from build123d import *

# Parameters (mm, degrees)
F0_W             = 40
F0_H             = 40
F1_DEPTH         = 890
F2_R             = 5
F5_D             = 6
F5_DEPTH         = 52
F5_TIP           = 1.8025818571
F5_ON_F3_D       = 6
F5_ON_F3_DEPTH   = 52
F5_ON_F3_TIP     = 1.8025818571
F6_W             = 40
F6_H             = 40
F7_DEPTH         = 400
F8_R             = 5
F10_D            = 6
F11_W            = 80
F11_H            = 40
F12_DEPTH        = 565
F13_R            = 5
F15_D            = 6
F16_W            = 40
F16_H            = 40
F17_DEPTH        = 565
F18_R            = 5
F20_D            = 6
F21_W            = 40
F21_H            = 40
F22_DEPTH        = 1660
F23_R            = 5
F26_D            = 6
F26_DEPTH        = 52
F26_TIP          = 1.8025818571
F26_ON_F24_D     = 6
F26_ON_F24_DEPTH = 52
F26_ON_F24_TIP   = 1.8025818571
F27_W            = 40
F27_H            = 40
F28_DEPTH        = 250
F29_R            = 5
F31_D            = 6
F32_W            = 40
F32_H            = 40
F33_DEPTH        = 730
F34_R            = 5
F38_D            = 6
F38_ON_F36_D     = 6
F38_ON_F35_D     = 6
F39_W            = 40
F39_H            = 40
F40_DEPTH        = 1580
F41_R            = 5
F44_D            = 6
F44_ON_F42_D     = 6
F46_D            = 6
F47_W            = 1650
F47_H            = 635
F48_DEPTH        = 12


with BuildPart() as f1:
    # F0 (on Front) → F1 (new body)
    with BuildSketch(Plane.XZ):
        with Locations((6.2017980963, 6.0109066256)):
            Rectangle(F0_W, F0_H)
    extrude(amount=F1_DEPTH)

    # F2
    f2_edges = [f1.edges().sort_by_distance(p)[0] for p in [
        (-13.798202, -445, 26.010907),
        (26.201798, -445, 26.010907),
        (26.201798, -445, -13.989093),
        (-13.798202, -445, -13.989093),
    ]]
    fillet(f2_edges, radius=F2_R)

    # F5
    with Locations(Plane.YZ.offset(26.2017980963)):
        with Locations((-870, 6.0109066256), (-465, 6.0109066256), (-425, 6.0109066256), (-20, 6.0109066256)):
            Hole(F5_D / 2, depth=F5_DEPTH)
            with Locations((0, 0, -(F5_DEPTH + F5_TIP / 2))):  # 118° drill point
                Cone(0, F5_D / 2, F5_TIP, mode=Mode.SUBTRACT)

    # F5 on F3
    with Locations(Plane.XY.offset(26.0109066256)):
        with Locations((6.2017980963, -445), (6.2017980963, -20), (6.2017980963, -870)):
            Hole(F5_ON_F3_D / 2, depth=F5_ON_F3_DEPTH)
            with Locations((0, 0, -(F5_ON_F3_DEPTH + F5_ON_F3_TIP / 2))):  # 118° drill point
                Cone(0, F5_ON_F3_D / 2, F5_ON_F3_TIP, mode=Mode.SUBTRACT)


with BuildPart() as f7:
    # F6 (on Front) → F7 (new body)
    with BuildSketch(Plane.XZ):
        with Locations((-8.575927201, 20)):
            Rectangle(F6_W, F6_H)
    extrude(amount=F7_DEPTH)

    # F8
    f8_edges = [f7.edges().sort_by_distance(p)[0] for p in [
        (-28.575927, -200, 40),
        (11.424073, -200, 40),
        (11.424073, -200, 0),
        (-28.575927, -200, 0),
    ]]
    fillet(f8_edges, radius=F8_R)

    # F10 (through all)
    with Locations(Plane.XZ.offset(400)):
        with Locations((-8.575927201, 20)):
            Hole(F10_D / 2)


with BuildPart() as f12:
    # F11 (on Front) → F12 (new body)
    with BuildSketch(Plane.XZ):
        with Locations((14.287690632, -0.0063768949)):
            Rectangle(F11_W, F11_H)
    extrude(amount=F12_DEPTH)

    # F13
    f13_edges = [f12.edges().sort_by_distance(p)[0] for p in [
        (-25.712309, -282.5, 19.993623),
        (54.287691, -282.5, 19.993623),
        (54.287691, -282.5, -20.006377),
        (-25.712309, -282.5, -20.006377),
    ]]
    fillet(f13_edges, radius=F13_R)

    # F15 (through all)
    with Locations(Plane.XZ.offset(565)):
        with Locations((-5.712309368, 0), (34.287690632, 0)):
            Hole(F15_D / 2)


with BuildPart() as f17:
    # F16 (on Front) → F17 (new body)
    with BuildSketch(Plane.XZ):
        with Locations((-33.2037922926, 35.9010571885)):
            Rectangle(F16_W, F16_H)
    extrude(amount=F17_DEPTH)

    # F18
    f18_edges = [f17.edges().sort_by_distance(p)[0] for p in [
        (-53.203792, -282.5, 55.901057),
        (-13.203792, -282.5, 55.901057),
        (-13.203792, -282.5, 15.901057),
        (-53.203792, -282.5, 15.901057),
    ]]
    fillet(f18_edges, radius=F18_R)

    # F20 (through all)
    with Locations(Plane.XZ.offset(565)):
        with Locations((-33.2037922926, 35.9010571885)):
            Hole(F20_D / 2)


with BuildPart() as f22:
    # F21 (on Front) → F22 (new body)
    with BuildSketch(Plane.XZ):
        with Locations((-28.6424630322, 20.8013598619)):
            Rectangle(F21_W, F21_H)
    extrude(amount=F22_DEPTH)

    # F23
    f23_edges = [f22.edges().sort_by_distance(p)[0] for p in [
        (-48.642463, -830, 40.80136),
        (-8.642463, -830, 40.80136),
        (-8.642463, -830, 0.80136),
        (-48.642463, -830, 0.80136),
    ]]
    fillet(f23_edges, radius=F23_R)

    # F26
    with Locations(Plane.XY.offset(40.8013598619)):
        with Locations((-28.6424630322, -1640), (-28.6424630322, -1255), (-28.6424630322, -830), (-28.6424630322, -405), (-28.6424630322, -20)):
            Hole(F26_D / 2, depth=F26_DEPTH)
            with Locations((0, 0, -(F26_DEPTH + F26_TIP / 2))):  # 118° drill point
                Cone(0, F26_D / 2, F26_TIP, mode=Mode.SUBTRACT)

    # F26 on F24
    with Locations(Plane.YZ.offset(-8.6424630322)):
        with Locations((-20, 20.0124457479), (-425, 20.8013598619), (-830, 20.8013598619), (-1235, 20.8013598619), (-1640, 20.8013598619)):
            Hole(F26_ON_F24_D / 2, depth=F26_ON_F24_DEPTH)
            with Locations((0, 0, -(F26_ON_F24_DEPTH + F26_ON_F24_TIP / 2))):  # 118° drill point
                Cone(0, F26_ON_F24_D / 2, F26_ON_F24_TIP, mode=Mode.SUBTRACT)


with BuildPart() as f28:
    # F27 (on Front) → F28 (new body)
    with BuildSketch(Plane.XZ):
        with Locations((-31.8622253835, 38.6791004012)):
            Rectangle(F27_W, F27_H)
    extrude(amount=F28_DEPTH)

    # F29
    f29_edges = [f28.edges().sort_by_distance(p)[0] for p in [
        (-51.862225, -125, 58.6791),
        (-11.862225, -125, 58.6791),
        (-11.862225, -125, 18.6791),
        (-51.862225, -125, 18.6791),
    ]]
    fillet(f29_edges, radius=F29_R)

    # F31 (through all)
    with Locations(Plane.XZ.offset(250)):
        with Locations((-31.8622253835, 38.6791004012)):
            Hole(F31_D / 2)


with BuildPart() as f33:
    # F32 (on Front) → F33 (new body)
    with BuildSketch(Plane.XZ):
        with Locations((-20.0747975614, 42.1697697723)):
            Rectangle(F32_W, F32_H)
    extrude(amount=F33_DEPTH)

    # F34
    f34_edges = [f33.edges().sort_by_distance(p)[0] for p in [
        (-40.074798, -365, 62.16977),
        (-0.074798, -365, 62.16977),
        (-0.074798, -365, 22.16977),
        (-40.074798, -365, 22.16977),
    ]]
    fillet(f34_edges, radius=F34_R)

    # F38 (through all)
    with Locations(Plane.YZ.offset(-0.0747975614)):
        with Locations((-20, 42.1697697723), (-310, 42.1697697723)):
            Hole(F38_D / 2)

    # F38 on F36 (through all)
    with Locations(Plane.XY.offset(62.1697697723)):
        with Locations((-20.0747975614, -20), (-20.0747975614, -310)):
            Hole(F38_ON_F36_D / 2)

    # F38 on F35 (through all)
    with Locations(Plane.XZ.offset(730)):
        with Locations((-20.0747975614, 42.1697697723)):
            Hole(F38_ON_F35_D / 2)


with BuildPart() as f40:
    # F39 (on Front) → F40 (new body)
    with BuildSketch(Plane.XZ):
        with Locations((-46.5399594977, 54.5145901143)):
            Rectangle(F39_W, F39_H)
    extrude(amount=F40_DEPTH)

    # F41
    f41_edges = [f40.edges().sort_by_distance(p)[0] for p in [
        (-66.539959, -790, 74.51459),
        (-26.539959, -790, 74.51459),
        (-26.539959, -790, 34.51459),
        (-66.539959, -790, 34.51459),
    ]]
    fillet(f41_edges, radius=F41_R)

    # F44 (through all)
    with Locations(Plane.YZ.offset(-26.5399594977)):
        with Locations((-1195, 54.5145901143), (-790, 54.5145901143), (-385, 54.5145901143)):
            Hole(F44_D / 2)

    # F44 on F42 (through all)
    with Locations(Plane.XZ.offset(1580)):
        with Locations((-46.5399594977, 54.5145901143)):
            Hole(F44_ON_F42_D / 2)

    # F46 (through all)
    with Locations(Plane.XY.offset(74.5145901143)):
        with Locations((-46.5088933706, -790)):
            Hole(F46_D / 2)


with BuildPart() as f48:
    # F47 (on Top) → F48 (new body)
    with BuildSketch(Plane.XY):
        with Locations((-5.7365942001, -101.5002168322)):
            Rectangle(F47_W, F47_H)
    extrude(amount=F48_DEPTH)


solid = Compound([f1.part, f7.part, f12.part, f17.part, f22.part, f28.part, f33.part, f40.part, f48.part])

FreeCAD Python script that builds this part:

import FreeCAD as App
import Part
import Sketcher
Q = App.Units.Quantity


def edges_at(feature, points):
    """Names of the edges that pass closest to the given points."""
    edges = feature.Shape.Edges
    near = lambda p: min(range(len(edges)), key=lambda i: edges[i].distToShape(Part.Vertex(*p))[0])
    return sorted({f"Edge{near(p) + 1}" for p in points})


def add_polygon(sketch, points):
    """Adds a closed chain of lines whose ends are joined by coincident constraints."""
    first, n = sketch.GeometryCount, len(points)
    for a, b in zip(points, points[1:] + points[:1]):
        sketch.addGeometry(Part.LineSegment(App.Vector(*a, 0), App.Vector(*b, 0)), False)
    for i in range(n):
        sketch.addConstraint(Sketcher.Constraint("Coincident", first + i, 2, first + (i + 1) % n, 1))

doc = App.newDocument("Part")
body = doc.addObject("PartDesign::Body", "Body")

# Sketch on XZ plane
sketch1 = doc.addObject("Sketcher::SketchObject", "Sketch")
body.addObject(sketch1)
sketch1.AttachmentSupport = (doc.XZ_Plane, [""])
sketch1.MapMode = "FlatFace"
add_polygon(sketch1, [(-14, 26), (-14, -14), (26, -14), (26, 26)])  # lines 0-3
sketch1.addConstraint(Sketcher.Constraint("Vertical", 0))
sketch1.addConstraint(Sketcher.Constraint("Horizontal", 1))
sketch1.addConstraint(Sketcher.Constraint("Vertical", 2))
sketch1.addConstraint(Sketcher.Constraint("Horizontal", 3))
sketch1.addConstraint(Sketcher.Constraint("Equal", 3, 0))
sketch1.addConstraint(Sketcher.Constraint("DistanceX", 1, 1, 1, 2, Q("40 mm")))
sketch1.addConstraint(Sketcher.Constraint("DistanceX", 0, 2, -1, 1, Q("13.798202 mm")))
sketch1.addConstraint(Sketcher.Constraint("DistanceY", 0, 2, -1, 1, Q("13.989093 mm")))
pad1 = doc.addObject("PartDesign::Pad", "Pad")
body.addObject(pad1)
pad1.Profile = sketch1
pad1.Length = 890
doc.recompute()

fillet = doc.addObject("PartDesign::Fillet", "Fillet")
body.addObject(fillet)
fillet.Base = (pad1, edges_at(pad1, [
    (-13.798, -445, 26.011),
    (26.202, -445, 26.011),
    (26.202, -445, -13.989),
    (-13.798, -445, -13.989),
]))
fillet.Radius = 5

# Sketch on YZ plane
sketch2 = doc.addObject("Sketcher::SketchObject", "Sketch001")
body.addObject(sketch2)
sketch2.AttachmentSupport = (doc.YZ_Plane, [""])
sketch2.MapMode = "FlatFace"
sketch2.AttachmentOffset = App.Placement(App.Vector(0, 0, 26.201798), App.Rotation())
sketch2.addGeometry(Part.Circle(App.Vector(-870, 6, 0), App.Vector(0, 0, 1), 3), False)
sketch2.addGeometry(Part.Circle(App.Vector(-465, 6, 0), App.Vector(0, 0, 1), 3), False)
sketch2.addGeometry(Part.Circle(App.Vector(-425, 6, 0), App.Vector(0, 0, 1), 3), False)
sketch2.addGeometry(Part.Circle(App.Vector(-20, 6, 0), App.Vector(0, 0, 1), 3), False)
sketch2.addConstraint(Sketcher.Constraint("Equal", 0, 1))
sketch2.addConstraint(Sketcher.Constraint("Equal", 1, 2))
sketch2.addConstraint(Sketcher.Constraint("Equal", 2, 3))
sketch2.addConstraint(Sketcher.Constraint("Horizontal", 0, 3, 1, 3))
sketch2.addConstraint(Sketcher.Constraint("Horizontal", 1, 3, 2, 3))
sketch2.addConstraint(Sketcher.Constraint("Horizontal", 2, 3, 3, 3))
sketch2.addConstraint(Sketcher.Constraint("Diameter", 0, Q("6 mm")))
sketch2.addConstraint(Sketcher.Constraint("DistanceX", 0, 3, -1, 1, Q("870 mm")))
sketch2.addConstraint(Sketcher.Constraint("DistanceX", 1, 3, -1, 1, Q("465 mm")))
sketch2.addConstraint(Sketcher.Constraint("DistanceX", 2, 3, -1, 1, Q("425 mm")))
sketch2.addConstraint(Sketcher.Constraint("DistanceX", 3, 3, -1, 1, Q("20 mm")))
sketch2.addConstraint(Sketcher.Constraint("DistanceY", -1, 1, 0, 3, Q("6.010907 mm")))
doc.recompute()
hole = doc.addObject("PartDesign::Hole", "Hole")
body.addObject(hole)
hole.Profile = sketch2
hole.ThreadType = "None"
hole.Diameter = 6
hole.DepthType = "Dimension"
hole.Depth = 52
hole.DrillPoint = "Angled"
hole.DrillPointAngle = 118

# Sketch on XY plane
sketch3 = doc.addObject("Sketcher::SketchObject", "Sketch002")
body.addObject(sketch3)
sketch3.AttachmentSupport = (doc.XY_Plane, [""])
sketch3.MapMode = "FlatFace"
sketch3.AttachmentOffset = App.Placement(App.Vector(0, 0, 26.010907), App.Rotation())
sketch3.addGeometry(Part.Circle(App.Vector(6.2, -445, 0), App.Vector(0, 0, 1), 3), False)
sketch3.addGeometry(Part.Circle(App.Vector(6.2, -20, 0), App.Vector(0, 0, 1), 3), False)
sketch3.addGeometry(Part.Circle(App.Vector(6.2, -870, 0), App.Vector(0, 0, 1), 3), False)
sketch3.addConstraint(Sketcher.Constraint("Equal", 0, 1))
sketch3.addConstraint(Sketcher.Constraint("Equal", 1, 2))
sketch3.addConstraint(Sketcher.Constraint("Vertical", 0, 3, 1, 3))
sketch3.addConstraint(Sketcher.Constraint("Vertical", 1, 3, 2, 3))
sketch3.addConstraint(Sketcher.Constraint("Diameter", 0, Q("6 mm")))
sketch3.addConstraint(Sketcher.Constraint("DistanceY", 0, 3, -1, 1, Q("445 mm")))
sketch3.addConstraint(Sketcher.Constraint("DistanceY", 1, 3, -1, 1, Q("20 mm")))
sketch3.addConstraint(Sketcher.Constraint("DistanceY", 2, 3, -1, 1, Q("870 mm")))
sketch3.addConstraint(Sketcher.Constraint("DistanceX", -1, 1, 0, 3, Q("6.201798 mm")))
doc.recompute()
hole2 = doc.addObject("PartDesign::Hole", "Hole001")
body.addObject(hole2)
hole2.Profile = sketch3
hole2.ThreadType = "None"
hole2.Diameter = 6
hole2.DepthType = "Dimension"
hole2.Depth = 52
hole2.DrillPoint = "Angled"
hole2.DrillPointAngle = 118
body2 = doc.addObject("PartDesign::Body", "Body001")

# Sketch on XZ plane
sketch4 = doc.addObject("Sketcher::SketchObject", "Sketch003")
body2.addObject(sketch4)
sketch4.AttachmentSupport = (doc.getObject("XZ_Plane001"), [""])
sketch4.MapMode = "FlatFace"
add_polygon(sketch4, [(-29, 40), (-29, 0), (11, 0), (11, 40)])  # lines 0-3
sketch4.addConstraint(Sketcher.Constraint("Vertical", 0))
sketch4.addConstraint(Sketcher.Constraint("Horizontal", 1))
sketch4.addConstraint(Sketcher.Constraint("Vertical", 2))
sketch4.addConstraint(Sketcher.Constraint("Horizontal", 3))
sketch4.addConstraint(Sketcher.Constraint("PointOnObject", 0, 2, -1))
sketch4.addConstraint(Sketcher.Constraint("Equal", 3, 0))
sketch4.addConstraint(Sketcher.Constraint("DistanceX", 1, 1, 1, 2, Q("40 mm")))
sketch4.addConstraint(Sketcher.Constraint("DistanceX", 0, 2, -1, 1, Q("28.575927 mm")))
pad2 = doc.addObject("PartDesign::Pad", "Pad001")
body2.addObject(pad2)
pad2.Profile = sketch4
pad2.Length = 400
doc.recompute()

fillet2 = doc.addObject("PartDesign::Fillet", "Fillet001")
body2.addObject(fillet2)
fillet2.Base = (pad2, edges_at(pad2, [
    (-28.576, -200, 40),
    (11.424, -200, 40),
    (11.424, -200, 0),
    (-28.576, -200, 0),
]))
fillet2.Radius = 5

# Sketch on XZ plane
sketch5 = doc.addObject("Sketcher::SketchObject", "Sketch004")
body2.addObject(sketch5)
sketch5.AttachmentSupport = (doc.getObject("XZ_Plane001"), [""])
sketch5.MapMode = "FlatFace"
sketch5.AttachmentOffset = App.Placement(App.Vector(0, 0, 400), App.Rotation())
sketch5.addGeometry(Part.Circle(App.Vector(-8.6, 20, 0), App.Vector(0, 0, 1), 3), False)
sketch5.addConstraint(Sketcher.Constraint("Diameter", 0, Q("6 mm")))
sketch5.addConstraint(Sketcher.Constraint("DistanceY", -1, 1, 0, 3, Q("20 mm")))
sketch5.addConstraint(Sketcher.Constraint("DistanceX", 0, 3, -1, 1, Q("8.575927 mm")))
doc.recompute()
hole3 = doc.addObject("PartDesign::Hole", "Hole002")
body2.addObject(hole3)
hole3.Profile = sketch5
hole3.ThreadType = "None"
hole3.Diameter = 6
hole3.DepthType = "ThroughAll"
body3 = doc.addObject("PartDesign::Body", "Body002")

# Sketch on XZ plane
sketch6 = doc.addObject("Sketcher::SketchObject", "Sketch005")
body3.addObject(sketch6)
sketch6.AttachmentSupport = (doc.getObject("XZ_Plane002"), [""])
sketch6.MapMode = "FlatFace"
add_polygon(sketch6, [(-26, 20), (-26, -20), (54, -20), (54, 20)])  # lines 0-3
sketch6.addConstraint(Sketcher.Constraint("Vertical", 0))
sketch6.addConstraint(Sketcher.Constraint("Horizontal", 1))
sketch6.addConstraint(Sketcher.Constraint("Vertical", 2))
sketch6.addConstraint(Sketcher.Constraint("Horizontal", 3))
sketch6.addConstraint(Sketcher.Constraint("DistanceX", 1, 1, 1, 2, Q("80 mm")))
sketch6.addConstraint(Sketcher.Constraint("DistanceY", 0, 2, 0, 1, Q("40 mm")))
sketch6.addConstraint(Sketcher.Constraint("DistanceX", 0, 2, -1, 1, Q("25.712309 mm")))
sketch6.addConstraint(Sketcher.Constraint("DistanceY", 0, 2, -1, 1, Q("20.006377 mm")))
pad3 = doc.addObject("PartDesign::Pad", "Pad002")
body3.addObject(pad3)
pad3.Profile = sketch6
pad3.Length = 565
doc.recompute()

fillet3 = doc.addObject("PartDesign::Fillet", "Fillet002")
body3.addObject(fillet3)
fillet3.Base = (pad3, edges_at(pad3, [
    (-25.712, -282.5, 19.994),
    (54.288, -282.5, 19.994),
    (54.288, -282.5, -20.006),
    (-25.712, -282.5, -20.006),
]))
fillet3.Radius = 5

# Sketch on XZ plane
sketch7 = doc.addObject("Sketcher::SketchObject", "Sketch006")
body3.addObject(sketch7)
sketch7.AttachmentSupport = (doc.getObject("XZ_Plane002"), [""])
sketch7.MapMode = "FlatFace"
sketch7.AttachmentOffset = App.Placement(App.Vector(0, 0, 565), App.Rotation())
sketch7.addGeometry(Part.Circle(App.Vector(-5.7, 0, 0), App.Vector(0, 0, 1), 3), False)
sketch7.addGeometry(Part.Circle(App.Vector(34.3, 0, 0), App.Vector(0, 0, 1), 3), False)
sketch7.addConstraint(Sketcher.Constraint("Equal", 0, 1))
sketch7.addConstraint(Sketcher.Constraint("PointOnObject", 0, 3, -1))
sketch7.addConstraint(Sketcher.Constraint("PointOnObject", 1, 3, -1))
sketch7.addConstraint(Sketcher.Constraint("Diameter", 0, Q("6 mm")))
sketch7.addConstraint(Sketcher.Constraint("DistanceX", 0, 3, 1, 3, Q("40 mm")))
sketch7.addConstraint(Sketcher.Constraint("DistanceX", 0, 3, -1, 1, Q("5.712309 mm")))
doc.recompute()
hole4 = doc.addObject("PartDesign::Hole", "Hole003")
body3.addObject(hole4)
hole4.Profile = sketch7
hole4.ThreadType = "None"
hole4.Diameter = 6
hole4.DepthType = "ThroughAll"
body4 = doc.addObject("PartDesign::Body", "Body003")

# Sketch on XZ plane
sketch8 = doc.addObject("Sketcher::SketchObject", "Sketch007")
body4.addObject(sketch8)
sketch8.AttachmentSupport = (doc.getObject("XZ_Plane003"), [""])
sketch8.MapMode = "FlatFace"
add_polygon(sketch8, [(-53, 56), (-53, 16), (-13, 16), (-13, 56)])  # lines 0-3
sketch8.addConstraint(Sketcher.Constraint("Vertical", 0))
sketch8.addConstraint(Sketcher.Constraint("Horizontal", 1))
sketch8.addConstraint(Sketcher.Constraint("Vertical", 2))
sketch8.addConstraint(Sketcher.Constraint("Horizontal", 3))
sketch8.addConstraint(Sketcher.Constraint("Equal", 3, 0))
sketch8.addConstraint(Sketcher.Constraint("DistanceX", 1, 1, 1, 2, Q("40 mm")))
sketch8.addConstraint(Sketcher.Constraint("DistanceX", 0, 2, -1, 1, Q("53.203792 mm")))
sketch8.addConstraint(Sketcher.Constraint("DistanceY", -1, 1, 0, 2, Q("15.901057 mm")))
pad4 = doc.addObject("PartDesign::Pad", "Pad003")
body4.addObject(pad4)
pad4.Profile = sketch8
pad4.Length = 565
doc.recompute()

fillet4 = doc.addObject("PartDesign::Fillet", "Fillet003")
body4.addObject(fillet4)
fillet4.Base = (pad4, edges_at(pad4, [
    (-53.204, -282.5, 55.901),
    (-13.204, -282.5, 55.901),
    (-13.204, -282.5, 15.901),
    (-53.204, -282.5, 15.901),
]))
fillet4.Radius = 5

# Sketch on XZ plane
sketch9 = doc.addObject("Sketcher::SketchObject", "Sketch008")
body4.addObject(sketch9)
sketch9.AttachmentSupport = (doc.getObject("XZ_Plane003"), [""])
sketch9.MapMode = "FlatFace"
sketch9.AttachmentOffset = App.Placement(App.Vector(0, 0, 565), App.Rotation())
sketch9.addGeometry(Part.Circle(App.Vector(-33.2, 35.9, 0), App.Vector(0, 0, 1), 3), False)
sketch9.addConstraint(Sketcher.Constraint("Diameter", 0, Q("6 mm")))
sketch9.addConstraint(Sketcher.Constraint("DistanceX", 0, 3, -1, 1, Q("33.203792 mm")))
sketch9.addConstraint(Sketcher.Constraint("DistanceY", -1, 1, 0, 3, Q("35.901057 mm")))
doc.recompute()
hole5 = doc.addObject("PartDesign::Hole", "Hole004")
body4.addObject(hole5)
hole5.Profile = sketch9
hole5.ThreadType = "None"
hole5.Diameter = 6
hole5.DepthType = "ThroughAll"
body5 = doc.addObject("PartDesign::Body", "Body004")

# Sketch on XZ plane
sketch10 = doc.addObject("Sketcher::SketchObject", "Sketch009")
body5.addObject(sketch10)
sketch10.AttachmentSupport = (doc.getObject("XZ_Plane004"), [""])
sketch10.MapMode = "FlatFace"
add_polygon(sketch10, [(-49, 41), (-49, 1), (-9, 1), (-9, 41)])  # lines 0-3
sketch10.addConstraint(Sketcher.Constraint("Vertical", 0))
sketch10.addConstraint(Sketcher.Constraint("Horizontal", 1))
sketch10.addConstraint(Sketcher.Constraint("Vertical", 2))
sketch10.addConstraint(Sketcher.Constraint("Horizontal", 3))
sketch10.addConstraint(Sketcher.Constraint("Equal", 3, 0))
sketch10.addConstraint(Sketcher.Constraint("DistanceX", 1, 1, 1, 2, Q("40 mm")))
sketch10.addConstraint(Sketcher.Constraint("DistanceY", -1, 1, 0, 2, Q("0.80136 mm")))
sketch10.addConstraint(Sketcher.Constraint("DistanceX", 0, 2, -1, 1, Q("48.642463 mm")))
pad5 = doc.addObject("PartDesign::Pad", "Pad004")
body5.addObject(pad5)
pad5.Profile = sketch10
pad5.Length = 1660
doc.recompute()

fillet5 = doc.addObject("PartDesign::Fillet", "Fillet004")
body5.addObject(fillet5)
fillet5.Base = (pad5, edges_at(pad5, [
    (-48.642, -830, 40.801),
    (-8.642, -830, 40.801),
    (-8.642, -830, 0.801),
    (-48.642, -830, 0.801),
]))
fillet5.Radius = 5

# Sketch on XY plane
sketch11 = doc.addObject("Sketcher::SketchObject", "Sketch010")
body5.addObject(sketch11)
sketch11.AttachmentSupport = (doc.getObject("XY_Plane004"), [""])
sketch11.MapMode = "FlatFace"
sketch11.AttachmentOffset = App.Placement(App.Vector(0, 0, 40.80136), App.Rotation())
sketch11.addGeometry(Part.Circle(App.Vector(-28.6, -1640, 0), App.Vector(0, 0, 1), 3), False)
sketch11.addGeometry(Part.Circle(App.Vector(-28.6, -1255, 0), App.Vector(0, 0, 1), 3), False)
sketch11.addGeometry(Part.Circle(App.Vector(-28.6, -830, 0), App.Vector(0, 0, 1), 3), False)
sketch11.addGeometry(Part.Circle(App.Vector(-28.6, -405, 0), App.Vector(0, 0, 1), 3), False)
sketch11.addGeometry(Part.Circle(App.Vector(-28.6, -20, 0), App.Vector(0, 0, 1), 3), False)
sketch11.addConstraint(Sketcher.Constraint("Equal", 0, 1))
sketch11.addConstraint(Sketcher.Constraint("Equal", 1, 2))
sketch11.addConstraint(Sketcher.Constraint("Equal", 2, 3))
sketch11.addConstraint(Sketcher.Constraint("Equal", 3, 4))
sketch11.addConstraint(Sketcher.Constraint("Vertical", 0, 3, 1, 3))
sketch11.addConstraint(Sketcher.Constraint("Vertical", 1, 3, 2, 3))
sketch11.addConstraint(Sketcher.Constraint("Vertical", 2, 3, 3, 3))
sketch11.addConstraint(Sketcher.Constraint("Vertical", 3, 3, 4, 3))
sketch11.addConstraint(Sketcher.Constraint("Diameter", 0, Q("6 mm")))
sketch11.addConstraint(Sketcher.Constraint("DistanceY", 0, 3, -1, 1, Q("1640 mm")))
sketch11.addConstraint(Sketcher.Constraint("DistanceY", 1, 3, -1, 1, Q("1255 mm")))
sketch11.addConstraint(Sketcher.Constraint("DistanceY", 2, 3, -1, 1, Q("830 mm")))
sketch11.addConstraint(Sketcher.Constraint("DistanceY", 3, 3, -1, 1, Q("405 mm")))
sketch11.addConstraint(Sketcher.Constraint("DistanceY", 4, 3, -1, 1, Q("20 mm")))
sketch11.addConstraint(Sketcher.Constraint("DistanceX", 0, 3, -1, 1, Q("28.642463 mm")))
doc.recompute()
hole6 = doc.addObject("PartDesign::Hole", "Hole005")
body5.addObject(hole6)
hole6.Profile = sketch11
hole6.ThreadType = "None"
hole6.Diameter = 6
hole6.DepthType = "Dimension"
hole6.Depth = 52
hole6.DrillPoint = "Angled"
hole6.DrillPointAngle = 118

# Sketch on YZ plane
sketch12 = doc.addObject("Sketcher::SketchObject", "Sketch011")
body5.addObject(sketch12)
sketch12.AttachmentSupport = (doc.getObject("YZ_Plane004"), [""])
sketch12.MapMode = "FlatFace"
sketch12.AttachmentOffset = App.Placement(App.Vector(0, 0, -8.642463), App.Rotation())
sketch12.addGeometry(Part.Circle(App.Vector(-20, 20, 0), App.Vector(0, 0, 1), 3), False)
sketch12.addGeometry(Part.Circle(App.Vector(-425, 20.8, 0), App.Vector(0, 0, 1), 3), False)
sketch12.addGeometry(Part.Circle(App.Vector(-830, 20.8, 0), App.Vector(0, 0, 1), 3), False)
sketch12.addGeometry(Part.Circle(App.Vector(-1235, 20.8, 0), App.Vector(0, 0, 1), 3), False)
sketch12.addGeometry(Part.Circle(App.Vector(-1640, 20.8, 0), App.Vector(0, 0, 1), 3), False)
sketch12.addConstraint(Sketcher.Constraint("Equal", 0, 1))
sketch12.addConstraint(Sketcher.Constraint("Equal", 1, 2))
sketch12.addConstraint(Sketcher.Constraint("Equal", 2, 3))
sketch12.addConstraint(Sketcher.Constraint("Equal", 3, 4))
sketch12.addConstraint(Sketcher.Constraint("Horizontal", 1, 3, 2, 3))
sketch12.addConstraint(Sketcher.Constraint("Horizontal", 2, 3, 3, 3))
sketch12.addConstraint(Sketcher.Constraint("Horizontal", 3, 3, 4, 3))
sketch12.addConstraint(Sketcher.Constraint("Diameter", 0, Q("6 mm")))
sketch12.addConstraint(Sketcher.Constraint("DistanceX", 0, 3, -1, 1, Q("20 mm")))
sketch12.addConstraint(Sketcher.Constraint("DistanceX", 1, 3, -1, 1, Q("425 mm")))
sketch12.addConstraint(Sketcher.Constraint("DistanceX", 2, 3, -1, 1, Q("830 mm")))
sketch12.addConstraint(Sketcher.Constraint("DistanceX", 3, 3, -1, 1, Q("1235 mm")))
sketch12.addConstraint(Sketcher.Constraint("DistanceX", 4, 3, -1, 1, Q("1640 mm")))
sketch12.addConstraint(Sketcher.Constraint("DistanceY", -1, 1, 1, 3, Q("20.80136 mm")))
sketch12.addConstraint(Sketcher.Constraint("DistanceY", -1, 1, 0, 3, Q("20.012446 mm")))
doc.recompute()
hole7 = doc.addObject("PartDesign::Hole", "Hole006")
body5.addObject(hole7)
hole7.Profile = sketch12
hole7.ThreadType = "None"
hole7.Diameter = 6
hole7.DepthType = "Dimension"
hole7.Depth = 52
hole7.DrillPoint = "Angled"
hole7.DrillPointAngle = 118
body6 = doc.addObject("PartDesign::Body", "Body005")

# Sketch on XZ plane
sketch13 = doc.addObject("Sketcher::SketchObject", "Sketch012")
body6.addObject(sketch13)
sketch13.AttachmentSupport = (doc.getObject("XZ_Plane005"), [""])
sketch13.MapMode = "FlatFace"
add_polygon(sketch13, [(-52, 59), (-52, 19), (-12, 19), (-12, 59)])  # lines 0-3
sketch13.addConstraint(Sketcher.Constraint("Vertical", 0))
sketch13.addConstraint(Sketcher.Constraint("Horizontal", 1))
sketch13.addConstraint(Sketcher.Constraint("Vertical", 2))
sketch13.addConstraint(Sketcher.Constraint("Horizontal", 3))
sketch13.addConstraint(Sketcher.Constraint("Equal", 3, 0))
sketch13.addConstraint(Sketcher.Constraint("DistanceX", 1, 1, 1, 2, Q("40 mm")))
sketch13.addConstraint(Sketcher.Constraint("DistanceY", -1, 1, 0, 2, Q("18.6791 mm")))
sketch13.addConstraint(Sketcher.Constraint("DistanceX", 0, 2, -1, 1, Q("51.862225 mm")))
pad6 = doc.addObject("PartDesign::Pad", "Pad005")
body6.addObject(pad6)
pad6.Profile = sketch13
pad6.Length = 250
doc.recompute()

fillet6 = doc.addObject("PartDesign::Fillet", "Fillet005")
body6.addObject(fillet6)
fillet6.Base = (pad6, edges_at(pad6, [
    (-51.862, -125, 58.679),
    (-11.862, -125, 58.679),
    (-11.862, -125, 18.679),
    (-51.862, -125, 18.679),
]))
fillet6.Radius = 5

# Sketch on XZ plane
sketch14 = doc.addObject("Sketcher::SketchObject", "Sketch013")
body6.addObject(sketch14)
sketch14.AttachmentSupport = (doc.getObject("XZ_Plane005"), [""])
sketch14.MapMode = "FlatFace"
sketch14.AttachmentOffset = App.Placement(App.Vector(0, 0, 250), App.Rotation())
sketch14.addGeometry(Part.Circle(App.Vector(-31.9, 38.7, 0), App.Vector(0, 0, 1), 3), False)
sketch14.addConstraint(Sketcher.Constraint("Diameter", 0, Q("6 mm")))
sketch14.addConstraint(Sketcher.Constraint("DistanceY", -1, 1, 0, 3, Q("38.6791 mm")))
sketch14.addConstraint(Sketcher.Constraint("DistanceX", 0, 3, -1, 1, Q("31.862225 mm")))
doc.recompute()
hole8 = doc.addObject("PartDesign::Hole", "Hole007")
body6.addObject(hole8)
hole8.Profile = sketch14
hole8.ThreadType = "None"
hole8.Diameter = 6
hole8.DepthType = "ThroughAll"
body7 = doc.addObject("PartDesign::Body", "Body006")

# Sketch on XZ plane
sketch15 = doc.addObject("Sketcher::SketchObject", "Sketch014")
body7.addObject(sketch15)
sketch15.AttachmentSupport = (doc.getObject("XZ_Plane006"), [""])
sketch15.MapMode = "FlatFace"
add_polygon(sketch15, [(-40, 62), (-40, 22), (0, 22), (0, 62)])  # lines 0-3
sketch15.addConstraint(Sketcher.Constraint("Vertical", 0))
sketch15.addConstraint(Sketcher.Constraint("Horizontal", 1))
sketch15.addConstraint(Sketcher.Constraint("Vertical", 2))
sketch15.addConstraint(Sketcher.Constraint("Horizontal", 3))
sketch15.addConstraint(Sketcher.Constraint("Equal", 3, 0))
sketch15.addConstraint(Sketcher.Constraint("DistanceX", 1, 1, 1, 2, Q("40 mm")))
sketch15.addConstraint(Sketcher.Constraint("DistanceY", -1, 1, 0, 2, Q("22.16977 mm")))
sketch15.addConstraint(Sketcher.Constraint("DistanceX", 0, 2, -1, 1, Q("40.074798 mm")))
pad7 = doc.addObject("PartDesign::Pad", "Pad006")
body7.addObject(pad7)
pad7.Profile = sketch15
pad7.Length = 730
doc.recompute()

fillet7 = doc.addObject("PartDesign::Fillet", "Fillet006")
body7.addObject(fillet7)
fillet7.Base = (pad7, edges_at(pad7, [
    (-40.075, -365, 62.17),
    (-0.075, -365, 62.17),
    (-0.075, -365, 22.17),
    (-40.075, -365, 22.17),
]))
fillet7.Radius = 5

# Sketch on YZ plane
sketch16 = doc.addObject("Sketcher::SketchObject", "Sketch015")
body7.addObject(sketch16)
sketch16.AttachmentSupport = (doc.getObject("YZ_Plane006"), [""])
sketch16.MapMode = "FlatFace"
sketch16.AttachmentOffset = App.Placement(App.Vector(0, 0, -0.074798), App.Rotation())
sketch16.addGeometry(Part.Circle(App.Vector(-20, 42.2, 0), App.Vector(0, 0, 1), 3), False)
sketch16.addGeometry(Part.Circle(App.Vector(-310, 42.2, 0), App.Vector(0, 0, 1), 3), False)
sketch16.addConstraint(Sketcher.Constraint("Equal", 0, 1))
sketch16.addConstraint(Sketcher.Constraint("Horizontal", 0, 3, 1, 3))
sketch16.addConstraint(Sketcher.Constraint("Diameter", 0, Q("6 mm")))
sketch16.addConstraint(Sketcher.Constraint("DistanceX", 0, 3, -1, 1, Q("20 mm")))
sketch16.addConstraint(Sketcher.Constraint("DistanceX", 1, 3, -1, 1, Q("310 mm")))
sketch16.addConstraint(Sketcher.Constraint("DistanceY", -1, 1, 0, 3, Q("42.16977 mm")))
doc.recompute()
hole9 = doc.addObject("PartDesign::Hole", "Hole008")
body7.addObject(hole9)
hole9.Profile = sketch16
hole9.ThreadType = "None"
hole9.Diameter = 6
hole9.DepthType = "ThroughAll"

# Sketch on XY plane
sketch17 = doc.addObject("Sketcher::SketchObject", "Sketch016")
body7.addObject(sketch17)
sketch17.AttachmentSupport = (doc.getObject("XY_Plane006"), [""])
sketch17.MapMode = "FlatFace"
sketch17.AttachmentOffset = App.Placement(App.Vector(0, 0, 62.16977), App.Rotation())
sketch17.addGeometry(Part.Circle(App.Vector(-20.1, -20, 0), App.Vector(0, 0, 1), 3), False)
sketch17.addGeometry(Part.Circle(App.Vector(-20.1, -310, 0), App.Vector(0, 0, 1), 3), False)
sketch17.addConstraint(Sketcher.Constraint("Equal", 0, 1))
sketch17.addConstraint(Sketcher.Constraint("Vertical", 0, 3, 1, 3))
sketch17.addConstraint(Sketcher.Constraint("Diameter", 0, Q("6 mm")))
sketch17.addConstraint(Sketcher.Constraint("DistanceY", 0, 3, -1, 1, Q("20 mm")))
sketch17.addConstraint(Sketcher.Constraint("DistanceY", 1, 3, -1, 1, Q("310 mm")))
sketch17.addConstraint(Sketcher.Constraint("DistanceX", 0, 3, -1, 1, Q("20.074798 mm")))
doc.recompute()
hole10 = doc.addObject("PartDesign::Hole", "Hole009")
body7.addObject(hole10)
hole10.Profile = sketch17
hole10.ThreadType = "None"
hole10.Diameter = 6
hole10.DepthType = "ThroughAll"

# Sketch on XZ plane
sketch18 = doc.addObject("Sketcher::SketchObject", "Sketch017")
body7.addObject(sketch18)
sketch18.AttachmentSupport = (doc.getObject("XZ_Plane006"), [""])
sketch18.MapMode = "FlatFace"
sketch18.AttachmentOffset = App.Placement(App.Vector(0, 0, 730), App.Rotation())
sketch18.addGeometry(Part.Circle(App.Vector(-20.1, 42.2, 0), App.Vector(0, 0, 1), 3), False)
sketch18.addConstraint(Sketcher.Constraint("Diameter", 0, Q("6 mm")))
sketch18.addConstraint(Sketcher.Constraint("DistanceY", -1, 1, 0, 3, Q("42.16977 mm")))
sketch18.addConstraint(Sketcher.Constraint("DistanceX", 0, 3, -1, 1, Q("20.074798 mm")))
doc.recompute()
hole11 = doc.addObject("PartDesign::Hole", "Hole010")
body7.addObject(hole11)
hole11.Profile = sketch18
hole11.ThreadType = "None"
hole11.Diameter = 6
hole11.DepthType = "ThroughAll"
body8 = doc.addObject("PartDesign::Body", "Body007")

# Sketch on XZ plane
sketch19 = doc.addObject("Sketcher::SketchObject", "Sketch018")
body8.addObject(sketch19)
sketch19.AttachmentSupport = (doc.getObject("XZ_Plane007"), [""])
sketch19.MapMode = "FlatFace"
add_polygon(sketch19, [(-67, 75), (-67, 35), (-27, 35), (-27, 75)])  # lines 0-3
sketch19.addConstraint(Sketcher.Constraint("Vertical", 0))
sketch19.addConstraint(Sketcher.Constraint("Horizontal", 1))
sketch19.addConstraint(Sketcher.Constraint("Vertical", 2))
sketch19.addConstraint(Sketcher.Constraint("Horizontal", 3))
sketch19.addConstraint(Sketcher.Constraint("Equal", 3, 0))
sketch19.addConstraint(Sketcher.Constraint("DistanceX", 1, 1, 1, 2, Q("40 mm")))
sketch19.addConstraint(Sketcher.Constraint("DistanceX", 0, 2, -1, 1, Q("66.539959 mm")))
sketch19.addConstraint(Sketcher.Constraint("DistanceY", -1, 1, 0, 2, Q("34.51459 mm")))
pad8 = doc.addObject("PartDesign::Pad", "Pad007")
body8.addObject(pad8)
pad8.Profile = sketch19
pad8.Length = 1580
doc.recompute()

fillet8 = doc.addObject("PartDesign::Fillet", "Fillet007")
body8.addObject(fillet8)
fillet8.Base = (pad8, edges_at(pad8, [
    (-66.54, -790, 74.515),
    (-26.54, -790, 74.515),
    (-26.54, -790, 34.515),
    (-66.54, -790, 34.515),
]))
fillet8.Radius = 5

# Sketch on YZ plane
sketch20 = doc.addObject("Sketcher::SketchObject", "Sketch019")
body8.addObject(sketch20)
sketch20.AttachmentSupport = (doc.getObject("YZ_Plane007"), [""])
sketch20.MapMode = "FlatFace"
sketch20.AttachmentOffset = App.Placement(App.Vector(0, 0, -26.539959), App.Rotation())
sketch20.addGeometry(Part.Circle(App.Vector(-1195, 54.5, 0), App.Vector(0, 0, 1), 3), False)
sketch20.addGeometry(Part.Circle(App.Vector(-790, 54.5, 0), App.Vector(0, 0, 1), 3), False)
sketch20.addGeometry(Part.Circle(App.Vector(-385, 54.5, 0), App.Vector(0, 0, 1), 3), False)
sketch20.addConstraint(Sketcher.Constraint("Equal", 0, 1))
sketch20.addConstraint(Sketcher.Constraint("Equal", 1, 2))
sketch20.addConstraint(Sketcher.Constraint("Horizontal", 0, 3, 1, 3))
sketch20.addConstraint(Sketcher.Constraint("Horizontal", 1, 3, 2, 3))
sketch20.addConstraint(Sketcher.Constraint("Diameter", 0, Q("6 mm")))
sketch20.addConstraint(Sketcher.Constraint("DistanceX", 0, 3, -1, 1, Q("1195 mm")))
sketch20.addConstraint(Sketcher.Constraint("DistanceX", 1, 3, -1, 1, Q("790 mm")))
sketch20.addConstraint(Sketcher.Constraint("DistanceX", 2, 3, -1, 1, Q("385 mm")))
sketch20.addConstraint(Sketcher.Constraint("DistanceY", -1, 1, 0, 3, Q("54.51459 mm")))
doc.recompute()
hole12 = doc.addObject("PartDesign::Hole", "Hole011")
body8.addObject(hole12)
hole12.Profile = sketch20
hole12.ThreadType = "None"
hole12.Diameter = 6
hole12.DepthType = "ThroughAll"

# Sketch on XZ plane
sketch21 = doc.addObject("Sketcher::SketchObject", "Sketch020")
body8.addObject(sketch21)
sketch21.AttachmentSupport = (doc.getObject("XZ_Plane007"), [""])
sketch21.MapMode = "FlatFace"
sketch21.AttachmentOffset = App.Placement(App.Vector(0, 0, 1580), App.Rotation())
sketch21.addGeometry(Part.Circle(App.Vector(-46.5, 54.5, 0), App.Vector(0, 0, 1), 3), False)
sketch21.addConstraint(Sketcher.Constraint("Diameter", 0, Q("6 mm")))
sketch21.addConstraint(Sketcher.Constraint("DistanceX", 0, 3, -1, 1, Q("46.539959 mm")))
sketch21.addConstraint(Sketcher.Constraint("DistanceY", -1, 1, 0, 3, Q("54.51459 mm")))
doc.recompute()
hole13 = doc.addObject("PartDesign::Hole", "Hole012")
body8.addObject(hole13)
hole13.Profile = sketch21
hole13.ThreadType = "None"
hole13.Diameter = 6
hole13.DepthType = "ThroughAll"

# Sketch on XY plane
sketch22 = doc.addObject("Sketcher::SketchObject", "Sketch021")
body8.addObject(sketch22)
sketch22.AttachmentSupport = (doc.getObject("XY_Plane007"), [""])
sketch22.MapMode = "FlatFace"
sketch22.AttachmentOffset = App.Placement(App.Vector(0, 0, 74.51459), App.Rotation())
sketch22.addGeometry(Part.Circle(App.Vector(-46.5, -790, 0), App.Vector(0, 0, 1), 3), False)
sketch22.addConstraint(Sketcher.Constraint("Diameter", 0, Q("6 mm")))
sketch22.addConstraint(Sketcher.Constraint("DistanceY", 0, 3, -1, 1, Q("790 mm")))
sketch22.addConstraint(Sketcher.Constraint("DistanceX", 0, 3, -1, 1, Q("46.508893 mm")))
doc.recompute()
hole14 = doc.addObject("PartDesign::Hole", "Hole013")
body8.addObject(hole14)
hole14.Profile = sketch22
hole14.ThreadType = "None"
hole14.Diameter = 6
hole14.DepthType = "ThroughAll"
body9 = doc.addObject("PartDesign::Body", "Body008")

# Sketch on XY plane
sketch23 = doc.addObject("Sketcher::SketchObject", "Sketch022")
body9.addObject(sketch23)
sketch23.AttachmentSupport = (doc.getObject("XY_Plane008"), [""])
sketch23.MapMode = "FlatFace"
add_polygon(sketch23, [(-830.736594, 215.999783), (-830.736594, -419.000217), (819.263406, -419.000217), (819.263406, 215.999783)])  # lines 0-3
sketch23.addConstraint(Sketcher.Constraint("Vertical", 0))
sketch23.addConstraint(Sketcher.Constraint("Horizontal", 1))
sketch23.addConstraint(Sketcher.Constraint("Vertical", 2))
sketch23.addConstraint(Sketcher.Constraint("Horizontal", 3))
sketch23.addConstraint(Sketcher.Constraint("DistanceX", 1, 1, 1, 2, Q("1650 mm")))
sketch23.addConstraint(Sketcher.Constraint("DistanceY", 0, 2, 0, 1, Q("635 mm")))
sketch23.addConstraint(Sketcher.Constraint("DistanceX", 0, 2, -1, 1, Q("830.736594 mm")))
sketch23.addConstraint(Sketcher.Constraint("DistanceY", 0, 2, -1, 1, Q("419.000217 mm")))
pad9 = doc.addObject("PartDesign::Pad", "Pad008")
body9.addObject(pad9)
pad9.Profile = sketch23
pad9.Length = 12

doc.recompute()
